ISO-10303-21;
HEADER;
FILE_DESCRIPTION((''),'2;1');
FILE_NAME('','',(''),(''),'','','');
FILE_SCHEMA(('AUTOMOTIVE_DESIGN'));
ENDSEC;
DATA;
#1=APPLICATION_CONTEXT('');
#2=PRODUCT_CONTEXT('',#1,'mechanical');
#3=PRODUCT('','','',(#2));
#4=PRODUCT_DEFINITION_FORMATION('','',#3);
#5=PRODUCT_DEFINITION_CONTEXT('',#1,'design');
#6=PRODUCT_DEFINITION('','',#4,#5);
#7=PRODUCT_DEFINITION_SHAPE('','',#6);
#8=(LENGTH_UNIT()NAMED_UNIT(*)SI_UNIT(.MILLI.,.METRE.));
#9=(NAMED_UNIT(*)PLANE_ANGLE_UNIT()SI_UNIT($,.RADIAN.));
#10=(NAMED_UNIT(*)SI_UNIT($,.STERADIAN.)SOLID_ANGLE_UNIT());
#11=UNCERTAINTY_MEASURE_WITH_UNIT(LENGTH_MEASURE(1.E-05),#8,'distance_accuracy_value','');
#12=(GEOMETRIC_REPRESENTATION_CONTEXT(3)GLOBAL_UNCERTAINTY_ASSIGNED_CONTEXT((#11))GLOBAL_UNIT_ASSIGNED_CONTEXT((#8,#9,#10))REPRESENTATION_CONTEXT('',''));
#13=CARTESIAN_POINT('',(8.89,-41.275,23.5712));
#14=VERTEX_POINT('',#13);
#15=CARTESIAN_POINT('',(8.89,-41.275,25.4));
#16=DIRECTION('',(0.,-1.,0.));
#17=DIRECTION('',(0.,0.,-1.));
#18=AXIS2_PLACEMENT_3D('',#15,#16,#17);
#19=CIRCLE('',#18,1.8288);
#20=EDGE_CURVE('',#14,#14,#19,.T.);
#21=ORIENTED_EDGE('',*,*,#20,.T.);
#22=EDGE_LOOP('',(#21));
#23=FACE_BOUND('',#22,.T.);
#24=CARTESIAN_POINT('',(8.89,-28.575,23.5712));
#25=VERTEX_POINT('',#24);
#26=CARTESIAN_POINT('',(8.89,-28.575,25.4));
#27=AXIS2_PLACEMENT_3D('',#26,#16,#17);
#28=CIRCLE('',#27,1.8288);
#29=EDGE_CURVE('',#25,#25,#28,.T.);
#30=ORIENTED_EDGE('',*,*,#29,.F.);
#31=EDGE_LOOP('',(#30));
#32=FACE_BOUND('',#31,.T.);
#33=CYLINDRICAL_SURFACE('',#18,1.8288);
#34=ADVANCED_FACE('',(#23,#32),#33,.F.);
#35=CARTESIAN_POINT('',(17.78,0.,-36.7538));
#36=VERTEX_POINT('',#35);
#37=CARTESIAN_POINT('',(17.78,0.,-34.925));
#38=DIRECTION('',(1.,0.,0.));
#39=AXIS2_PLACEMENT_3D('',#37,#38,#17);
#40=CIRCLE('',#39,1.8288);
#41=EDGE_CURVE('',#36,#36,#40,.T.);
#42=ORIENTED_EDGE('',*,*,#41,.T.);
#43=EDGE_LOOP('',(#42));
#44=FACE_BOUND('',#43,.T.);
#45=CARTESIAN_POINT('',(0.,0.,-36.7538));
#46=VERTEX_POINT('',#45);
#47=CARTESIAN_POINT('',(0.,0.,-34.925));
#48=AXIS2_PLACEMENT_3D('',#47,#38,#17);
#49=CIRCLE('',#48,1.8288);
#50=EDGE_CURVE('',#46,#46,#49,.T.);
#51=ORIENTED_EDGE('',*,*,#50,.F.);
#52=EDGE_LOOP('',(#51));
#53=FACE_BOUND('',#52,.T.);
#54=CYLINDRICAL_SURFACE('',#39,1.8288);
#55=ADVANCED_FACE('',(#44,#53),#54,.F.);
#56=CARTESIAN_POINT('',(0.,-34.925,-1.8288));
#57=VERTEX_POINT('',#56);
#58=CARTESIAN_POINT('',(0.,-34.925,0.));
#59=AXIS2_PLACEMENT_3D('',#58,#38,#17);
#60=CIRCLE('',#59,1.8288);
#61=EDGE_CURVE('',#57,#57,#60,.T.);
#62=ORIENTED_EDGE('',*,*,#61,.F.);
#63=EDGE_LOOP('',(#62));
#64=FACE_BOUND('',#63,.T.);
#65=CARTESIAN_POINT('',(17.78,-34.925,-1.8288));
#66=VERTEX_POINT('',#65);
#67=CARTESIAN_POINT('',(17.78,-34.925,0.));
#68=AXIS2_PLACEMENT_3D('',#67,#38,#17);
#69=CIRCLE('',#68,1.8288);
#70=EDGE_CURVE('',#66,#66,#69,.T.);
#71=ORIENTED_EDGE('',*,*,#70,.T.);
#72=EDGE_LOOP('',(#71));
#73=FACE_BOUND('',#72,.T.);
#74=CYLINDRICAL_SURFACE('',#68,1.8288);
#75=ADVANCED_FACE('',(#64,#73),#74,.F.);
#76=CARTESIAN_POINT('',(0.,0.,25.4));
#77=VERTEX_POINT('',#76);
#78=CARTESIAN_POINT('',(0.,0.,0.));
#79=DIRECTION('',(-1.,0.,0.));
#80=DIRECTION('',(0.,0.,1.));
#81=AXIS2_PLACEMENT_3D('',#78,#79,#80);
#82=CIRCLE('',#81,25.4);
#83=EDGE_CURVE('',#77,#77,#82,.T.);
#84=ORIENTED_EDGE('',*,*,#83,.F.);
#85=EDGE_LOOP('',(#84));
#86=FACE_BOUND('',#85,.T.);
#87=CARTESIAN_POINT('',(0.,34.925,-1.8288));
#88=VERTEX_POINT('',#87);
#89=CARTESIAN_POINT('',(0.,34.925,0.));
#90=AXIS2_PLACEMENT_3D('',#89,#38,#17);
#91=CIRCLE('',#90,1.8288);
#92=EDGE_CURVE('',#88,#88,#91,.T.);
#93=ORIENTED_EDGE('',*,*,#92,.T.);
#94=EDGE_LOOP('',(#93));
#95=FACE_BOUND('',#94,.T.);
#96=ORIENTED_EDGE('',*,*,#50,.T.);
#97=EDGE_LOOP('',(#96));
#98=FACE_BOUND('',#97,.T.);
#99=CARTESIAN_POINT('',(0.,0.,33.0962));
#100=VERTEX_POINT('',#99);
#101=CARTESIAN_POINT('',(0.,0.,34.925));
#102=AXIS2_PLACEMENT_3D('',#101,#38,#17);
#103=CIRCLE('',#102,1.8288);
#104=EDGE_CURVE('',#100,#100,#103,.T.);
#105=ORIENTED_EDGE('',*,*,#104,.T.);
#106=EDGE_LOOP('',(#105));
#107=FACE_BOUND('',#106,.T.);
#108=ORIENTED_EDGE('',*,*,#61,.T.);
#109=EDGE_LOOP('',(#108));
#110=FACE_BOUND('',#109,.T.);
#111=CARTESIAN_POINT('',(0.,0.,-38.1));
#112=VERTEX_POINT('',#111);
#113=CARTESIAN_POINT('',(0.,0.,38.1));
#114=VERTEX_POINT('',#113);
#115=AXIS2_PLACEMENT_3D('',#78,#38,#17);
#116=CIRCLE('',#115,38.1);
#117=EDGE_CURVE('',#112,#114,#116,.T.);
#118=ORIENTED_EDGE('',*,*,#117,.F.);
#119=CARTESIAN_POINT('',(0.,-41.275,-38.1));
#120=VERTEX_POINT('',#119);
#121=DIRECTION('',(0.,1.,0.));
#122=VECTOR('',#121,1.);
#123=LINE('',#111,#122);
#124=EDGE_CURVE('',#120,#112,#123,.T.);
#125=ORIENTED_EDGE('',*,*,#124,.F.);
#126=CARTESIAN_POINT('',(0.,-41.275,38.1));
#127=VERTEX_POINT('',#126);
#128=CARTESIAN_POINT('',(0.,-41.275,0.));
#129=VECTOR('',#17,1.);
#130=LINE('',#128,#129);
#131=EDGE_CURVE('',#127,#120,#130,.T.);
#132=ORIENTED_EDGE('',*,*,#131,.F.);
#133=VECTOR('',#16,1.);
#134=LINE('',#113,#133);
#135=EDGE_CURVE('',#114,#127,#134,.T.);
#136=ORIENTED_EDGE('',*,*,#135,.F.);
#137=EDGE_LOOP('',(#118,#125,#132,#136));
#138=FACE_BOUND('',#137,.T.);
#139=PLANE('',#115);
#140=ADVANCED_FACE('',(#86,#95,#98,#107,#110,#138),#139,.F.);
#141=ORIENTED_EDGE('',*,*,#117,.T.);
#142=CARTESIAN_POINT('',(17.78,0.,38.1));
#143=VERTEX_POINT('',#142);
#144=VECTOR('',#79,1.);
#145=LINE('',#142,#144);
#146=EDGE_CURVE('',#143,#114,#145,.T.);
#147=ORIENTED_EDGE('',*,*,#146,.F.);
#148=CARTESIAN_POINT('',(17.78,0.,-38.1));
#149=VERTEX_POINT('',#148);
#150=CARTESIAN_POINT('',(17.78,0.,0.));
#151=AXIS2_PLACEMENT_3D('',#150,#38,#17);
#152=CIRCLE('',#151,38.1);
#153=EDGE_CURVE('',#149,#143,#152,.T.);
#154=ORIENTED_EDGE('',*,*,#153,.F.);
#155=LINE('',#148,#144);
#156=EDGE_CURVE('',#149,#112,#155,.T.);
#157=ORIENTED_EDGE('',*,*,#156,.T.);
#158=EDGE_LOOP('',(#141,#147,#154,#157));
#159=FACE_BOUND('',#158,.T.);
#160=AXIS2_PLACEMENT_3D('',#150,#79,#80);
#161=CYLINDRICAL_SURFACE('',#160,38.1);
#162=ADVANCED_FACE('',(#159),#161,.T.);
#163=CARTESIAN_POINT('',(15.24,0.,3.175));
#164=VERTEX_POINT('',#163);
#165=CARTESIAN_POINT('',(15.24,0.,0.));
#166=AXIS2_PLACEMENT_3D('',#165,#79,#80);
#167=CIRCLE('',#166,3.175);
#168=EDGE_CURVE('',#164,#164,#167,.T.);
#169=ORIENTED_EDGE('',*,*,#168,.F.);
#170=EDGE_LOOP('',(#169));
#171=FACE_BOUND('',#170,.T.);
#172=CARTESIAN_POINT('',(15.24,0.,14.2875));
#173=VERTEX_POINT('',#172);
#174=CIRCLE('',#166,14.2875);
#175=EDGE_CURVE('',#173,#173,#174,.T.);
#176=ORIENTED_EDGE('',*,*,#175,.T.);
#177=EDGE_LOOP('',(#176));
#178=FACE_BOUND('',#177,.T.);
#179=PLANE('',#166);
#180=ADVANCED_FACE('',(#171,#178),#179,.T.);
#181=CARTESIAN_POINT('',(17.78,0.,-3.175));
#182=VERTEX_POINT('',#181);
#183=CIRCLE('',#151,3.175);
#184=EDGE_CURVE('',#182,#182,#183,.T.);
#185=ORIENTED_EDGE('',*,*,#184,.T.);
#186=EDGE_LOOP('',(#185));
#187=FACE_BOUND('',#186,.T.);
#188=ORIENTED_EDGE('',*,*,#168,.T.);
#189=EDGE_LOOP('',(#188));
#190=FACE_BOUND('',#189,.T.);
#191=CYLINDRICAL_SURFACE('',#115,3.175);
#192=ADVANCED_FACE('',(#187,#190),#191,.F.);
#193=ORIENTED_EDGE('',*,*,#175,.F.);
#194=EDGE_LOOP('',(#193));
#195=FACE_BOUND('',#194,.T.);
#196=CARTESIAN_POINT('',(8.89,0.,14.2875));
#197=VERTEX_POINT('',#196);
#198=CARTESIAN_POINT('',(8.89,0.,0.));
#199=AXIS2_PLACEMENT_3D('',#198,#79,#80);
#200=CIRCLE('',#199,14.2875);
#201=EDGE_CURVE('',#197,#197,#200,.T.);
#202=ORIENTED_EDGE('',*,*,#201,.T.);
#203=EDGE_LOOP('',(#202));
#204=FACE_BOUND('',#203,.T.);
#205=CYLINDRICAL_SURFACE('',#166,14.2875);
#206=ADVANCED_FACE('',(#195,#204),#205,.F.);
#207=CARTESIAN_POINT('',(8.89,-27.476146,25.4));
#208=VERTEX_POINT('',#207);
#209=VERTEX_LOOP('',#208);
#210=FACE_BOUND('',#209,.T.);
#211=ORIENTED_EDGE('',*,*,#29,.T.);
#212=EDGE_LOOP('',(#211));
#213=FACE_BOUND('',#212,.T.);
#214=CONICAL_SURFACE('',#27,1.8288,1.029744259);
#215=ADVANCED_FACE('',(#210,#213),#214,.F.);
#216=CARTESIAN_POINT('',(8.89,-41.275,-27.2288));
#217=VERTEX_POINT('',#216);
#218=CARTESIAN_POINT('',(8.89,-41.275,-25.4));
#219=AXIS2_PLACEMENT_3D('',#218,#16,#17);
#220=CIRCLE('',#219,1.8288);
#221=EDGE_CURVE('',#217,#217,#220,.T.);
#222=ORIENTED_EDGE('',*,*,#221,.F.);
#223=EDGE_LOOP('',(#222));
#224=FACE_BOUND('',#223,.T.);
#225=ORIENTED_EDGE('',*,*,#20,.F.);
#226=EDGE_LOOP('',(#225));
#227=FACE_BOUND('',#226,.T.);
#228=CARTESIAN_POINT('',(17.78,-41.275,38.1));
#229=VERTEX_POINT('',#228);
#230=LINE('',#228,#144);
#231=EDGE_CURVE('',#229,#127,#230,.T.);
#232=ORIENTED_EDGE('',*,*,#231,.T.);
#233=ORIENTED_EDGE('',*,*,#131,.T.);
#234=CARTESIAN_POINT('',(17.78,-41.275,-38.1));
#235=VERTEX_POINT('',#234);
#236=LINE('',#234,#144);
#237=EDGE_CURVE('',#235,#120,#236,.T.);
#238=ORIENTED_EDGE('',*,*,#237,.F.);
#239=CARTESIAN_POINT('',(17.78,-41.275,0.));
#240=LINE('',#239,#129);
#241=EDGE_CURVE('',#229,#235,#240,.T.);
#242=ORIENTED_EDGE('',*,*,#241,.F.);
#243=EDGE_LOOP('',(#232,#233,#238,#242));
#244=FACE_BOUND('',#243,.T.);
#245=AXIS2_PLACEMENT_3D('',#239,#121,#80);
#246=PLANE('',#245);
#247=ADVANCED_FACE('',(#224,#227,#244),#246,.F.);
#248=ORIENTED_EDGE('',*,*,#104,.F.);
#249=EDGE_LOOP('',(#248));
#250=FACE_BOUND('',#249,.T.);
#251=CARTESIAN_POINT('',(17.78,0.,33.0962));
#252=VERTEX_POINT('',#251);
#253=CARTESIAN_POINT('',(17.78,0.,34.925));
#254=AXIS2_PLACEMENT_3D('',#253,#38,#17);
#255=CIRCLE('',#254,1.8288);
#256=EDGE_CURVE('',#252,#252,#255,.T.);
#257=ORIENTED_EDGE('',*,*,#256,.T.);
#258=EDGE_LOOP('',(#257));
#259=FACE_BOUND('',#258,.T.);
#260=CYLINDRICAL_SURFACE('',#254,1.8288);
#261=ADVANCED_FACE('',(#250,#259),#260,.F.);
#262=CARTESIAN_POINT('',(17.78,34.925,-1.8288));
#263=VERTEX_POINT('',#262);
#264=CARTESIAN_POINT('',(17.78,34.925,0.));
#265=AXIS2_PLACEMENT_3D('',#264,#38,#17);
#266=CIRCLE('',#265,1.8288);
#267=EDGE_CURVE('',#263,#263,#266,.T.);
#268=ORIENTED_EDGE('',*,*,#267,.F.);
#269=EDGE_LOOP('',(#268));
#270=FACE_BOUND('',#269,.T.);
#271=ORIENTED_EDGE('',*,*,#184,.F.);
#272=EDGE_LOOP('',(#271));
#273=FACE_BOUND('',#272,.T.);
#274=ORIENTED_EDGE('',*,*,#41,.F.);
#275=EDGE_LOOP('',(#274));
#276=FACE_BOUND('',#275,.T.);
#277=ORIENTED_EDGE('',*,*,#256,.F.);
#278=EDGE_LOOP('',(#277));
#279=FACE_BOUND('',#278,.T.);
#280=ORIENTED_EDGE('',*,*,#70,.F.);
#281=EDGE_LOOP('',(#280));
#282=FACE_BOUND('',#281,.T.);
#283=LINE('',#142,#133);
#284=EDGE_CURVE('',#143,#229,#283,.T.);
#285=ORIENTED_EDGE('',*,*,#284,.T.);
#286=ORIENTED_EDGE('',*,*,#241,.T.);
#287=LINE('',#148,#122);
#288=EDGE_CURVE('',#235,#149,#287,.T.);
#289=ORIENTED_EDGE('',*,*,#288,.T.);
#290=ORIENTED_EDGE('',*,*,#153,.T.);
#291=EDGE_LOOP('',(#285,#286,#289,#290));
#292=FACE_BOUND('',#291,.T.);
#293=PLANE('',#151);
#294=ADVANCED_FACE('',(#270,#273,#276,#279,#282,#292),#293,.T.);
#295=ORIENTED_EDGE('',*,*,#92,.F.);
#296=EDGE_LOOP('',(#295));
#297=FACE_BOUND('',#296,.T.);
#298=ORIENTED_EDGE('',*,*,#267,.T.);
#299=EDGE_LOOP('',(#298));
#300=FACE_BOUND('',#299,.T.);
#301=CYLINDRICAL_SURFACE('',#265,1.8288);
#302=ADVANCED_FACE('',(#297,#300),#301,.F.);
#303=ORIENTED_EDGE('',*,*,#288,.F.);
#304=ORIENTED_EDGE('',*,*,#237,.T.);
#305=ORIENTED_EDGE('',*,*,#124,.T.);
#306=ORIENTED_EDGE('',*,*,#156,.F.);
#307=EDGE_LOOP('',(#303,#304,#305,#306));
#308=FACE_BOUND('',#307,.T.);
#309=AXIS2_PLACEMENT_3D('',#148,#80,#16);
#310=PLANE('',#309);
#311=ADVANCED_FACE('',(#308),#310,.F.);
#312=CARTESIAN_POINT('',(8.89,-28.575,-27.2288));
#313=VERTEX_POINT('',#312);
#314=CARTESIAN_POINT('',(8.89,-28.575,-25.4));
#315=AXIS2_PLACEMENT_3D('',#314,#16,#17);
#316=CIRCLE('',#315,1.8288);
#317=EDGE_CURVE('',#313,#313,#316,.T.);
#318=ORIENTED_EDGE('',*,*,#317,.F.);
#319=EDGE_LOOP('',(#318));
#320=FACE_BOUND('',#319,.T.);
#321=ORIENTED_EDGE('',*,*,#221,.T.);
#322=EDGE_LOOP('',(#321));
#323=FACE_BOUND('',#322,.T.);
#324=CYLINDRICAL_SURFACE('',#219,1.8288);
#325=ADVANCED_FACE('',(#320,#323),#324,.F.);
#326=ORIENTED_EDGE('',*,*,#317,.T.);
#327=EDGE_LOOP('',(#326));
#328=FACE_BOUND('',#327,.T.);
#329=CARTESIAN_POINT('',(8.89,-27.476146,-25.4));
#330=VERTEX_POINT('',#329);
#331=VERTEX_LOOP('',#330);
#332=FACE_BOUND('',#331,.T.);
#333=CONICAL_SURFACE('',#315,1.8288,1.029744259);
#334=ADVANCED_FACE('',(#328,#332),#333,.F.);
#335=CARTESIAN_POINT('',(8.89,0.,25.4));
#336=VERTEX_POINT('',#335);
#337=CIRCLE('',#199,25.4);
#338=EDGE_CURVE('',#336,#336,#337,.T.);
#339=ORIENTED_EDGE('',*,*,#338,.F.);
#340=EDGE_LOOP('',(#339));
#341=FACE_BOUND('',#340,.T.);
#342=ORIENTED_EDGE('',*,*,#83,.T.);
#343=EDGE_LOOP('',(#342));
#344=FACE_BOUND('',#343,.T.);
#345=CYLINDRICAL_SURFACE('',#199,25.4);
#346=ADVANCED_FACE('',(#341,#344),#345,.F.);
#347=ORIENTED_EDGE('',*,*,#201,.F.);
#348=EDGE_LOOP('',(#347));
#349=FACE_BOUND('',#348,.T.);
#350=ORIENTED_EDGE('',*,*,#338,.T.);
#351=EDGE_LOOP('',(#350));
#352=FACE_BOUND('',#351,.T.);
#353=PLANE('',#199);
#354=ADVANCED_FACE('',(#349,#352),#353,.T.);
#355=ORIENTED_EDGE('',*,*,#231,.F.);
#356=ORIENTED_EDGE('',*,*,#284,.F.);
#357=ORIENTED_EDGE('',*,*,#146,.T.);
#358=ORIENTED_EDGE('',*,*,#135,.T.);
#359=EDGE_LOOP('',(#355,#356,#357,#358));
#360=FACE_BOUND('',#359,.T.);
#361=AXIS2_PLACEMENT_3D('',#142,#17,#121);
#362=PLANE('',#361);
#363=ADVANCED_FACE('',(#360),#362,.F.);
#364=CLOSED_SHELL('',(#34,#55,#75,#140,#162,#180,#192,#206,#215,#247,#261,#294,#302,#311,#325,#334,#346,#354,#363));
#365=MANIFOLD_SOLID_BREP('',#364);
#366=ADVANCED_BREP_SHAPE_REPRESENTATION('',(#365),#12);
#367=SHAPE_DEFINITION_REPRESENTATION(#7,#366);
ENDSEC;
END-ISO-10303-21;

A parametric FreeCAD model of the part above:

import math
import FreeCAD as App
import Part
import Sketcher
Q = App.Units.Quantity

doc = App.newDocument("Part")
body = doc.addObject("PartDesign::Body", "Body")

# Sketch on YZ plane
sketch1 = doc.addObject("Sketcher::SketchObject", "Sketch")
body.addObject(sketch1)
sketch1.AttachmentSupport = (doc.YZ_Plane, [""])
sketch1.MapMode = "FlatFace"
sketch1.addGeometry(Part.LineSegment(App.Vector(0, 38, 0), App.Vector(-41, 38, 0)), False)
sketch1.addGeometry(Part.LineSegment(App.Vector(-41, 38, 0), App.Vector(-41, -38, 0)), False)
sketch1.addGeometry(Part.LineSegment(App.Vector(-41, -38, 0), App.Vector(0, -38, 0)), False)
sketch1.addGeometry(Part.ArcOfCircle(Part.Circle(App.Vector(0, 0, 0), App.Vector(0, 0, 1), 38), math.radians(-90), math.radians(90)), False)
sketch1.addConstraint(Sketcher.Constraint("Coincident", 0, 2, 1, 1))
sketch1.addConstraint(Sketcher.Constraint("Coincident", 1, 2, 2, 1))
sketch1.addConstraint(Sketcher.Constraint("Tangent", 2, 2, 3, 1))
sketch1.addConstraint(Sketcher.Constraint("Tangent", 3, 2, 0, 1))
sketch1.addConstraint(Sketcher.Constraint("Horizontal", 0))
sketch1.addConstraint(Sketcher.Constraint("Vertical", 1))
sketch1.addConstraint(Sketcher.Constraint("Horizontal", 2))
sketch1.addConstraint(Sketcher.Constraint("Coincident", 3, 3, -1, 1))
sketch1.addConstraint(Sketcher.Constraint("Radius", 3, Q("1.5 in")))
sketch1.addConstraint(Sketcher.Constraint("DistanceX", 0, 2, 0, 1, Q("1.625 in")))
pad1 = doc.addObject("PartDesign::Pad", "Pad")
body.addObject(pad1)
pad1.Profile = sketch1
pad1.Length = Q("0.7 in")

# Sketch on YZ plane
sketch2 = doc.addObject("Sketcher::SketchObject", "Sketch001")
body.addObject(sketch2)
sketch2.AttachmentSupport = (doc.YZ_Plane, [""])
sketch2.MapMode = "FlatFace"
sketch2.addGeometry(Part.Circle(App.Vector(0, 0, 0), App.Vector(0, 0, 1), 25), False)
sketch2.addConstraint(Sketcher.Constraint("Coincident", 0, 3, -1, 1))
sketch2.addConstraint(Sketcher.Constraint("Diameter", 0, Q("2 in")))
pocket1 = doc.addObject("PartDesign::Pocket", "Pocket")
body.addObject(pocket1)
pocket1.Profile = sketch2
pocket1.Length = Q("0.35 in")
pocket1.Reversed = True

# Sketch on YZ plane
sketch3 = doc.addObject("Sketcher::SketchObject", "Sketch002")
body.addObject(sketch3)
sketch3.AttachmentSupport = (doc.YZ_Plane, [""])
sketch3.MapMode = "FlatFace"
sketch3.AttachmentOffset = App.Placement(App.Vector(0, 0, 0.7 * 25.4), App.Rotation())
sketch3.addGeometry(Part.Circle(App.Vector(34.9, 0, 0), App.Vector(0, 0, 1), 1.8), False)
sketch3.addGeometry(Part.Circle(App.Vector(0, -34.9, 0), App.Vector(0, 0, 1), 1.8), False)
sketch3.addGeometry(Part.Circle(App.Vector(-34.9, 0, 0), App.Vector(0, 0, 1), 1.8), False)
sketch3.addGeometry(Part.Circle(App.Vector(0, 34.9, 0), App.Vector(0, 0, 1), 1.8), False)
sketch3.addConstraint(Sketcher.Constraint("Equal", 0, 1))
sketch3.addConstraint(Sketcher.Constraint("Equal", 1, 2))
sketch3.addConstraint(Sketcher.Constraint("Equal", 2, 3))
sketch3.addConstraint(Sketcher.Constraint("Symmetric", 0, 3, 2, 3, -1, 1))
sketch3.addConstraint(Sketcher.Constraint("Symmetric", 1, 3, 3, 3, -1, 1))
sketch3.addConstraint(Sketcher.Constraint("PointOnObject", 0, 3, -1))
sketch3.addConstraint(Sketcher.Constraint("PointOnObject", 1, 3, -2))
sketch3.addConstraint(Sketcher.Constraint("Diameter", 0, Q("0.144 in")))
sketch3.addConstraint(Sketcher.Constraint("DistanceX", 2, 3, 0, 3, Q("2.75 in")))
sketch3.addConstraint(Sketcher.Constraint("DistanceY", 1, 3, 3, 3, Q("2.75 in")))
doc.recompute()
hole = doc.addObject("PartDesign::Hole", "Hole")
body.addObject(hole)
hole.Profile = sketch3
hole.ThreadType = "None"
hole.Diameter = Q("0.144 in")
hole.DepthType = "ThroughAll"

# Sketch on YZ plane
sketch4 = doc.addObject("Sketcher::SketchObject", "Sketch003")
body.addObject(sketch4)
sketch4.AttachmentSupport = (doc.YZ_Plane, [""])
sketch4.MapMode = "FlatFace"
sketch4.AttachmentOffset = App.Placement(App.Vector(0, 0, 0.35 * 25.4), App.Rotation())
sketch4.addGeometry(Part.Circle(App.Vector(0, 0, 0), App.Vector(0, 0, 1), 14), False)
sketch4.addConstraint(Sketcher.Constraint("Coincident", 0, 3, -1, 1))
sketch4.addConstraint(Sketcher.Constraint("Diameter", 0, Q("1.125 in")))
pocket2 = doc.addObject("PartDesign::Pocket", "Pocket001")
body.addObject(pocket2)
pocket2.Profile = sketch4
pocket2.Length = Q("0.25 in")
pocket2.Reversed = True

# Sketch on YZ plane
sketch5 = doc.addObject("Sketcher::SketchObject", "Sketch004")
body.addObject(sketch5)
sketch5.AttachmentSupport = (doc.YZ_Plane, [""])
sketch5.MapMode = "FlatFace"
sketch5.AttachmentOffset = App.Placement(App.Vector(0, 0, 0.7 * 25.4), App.Rotation())
sketch5.addGeometry(Part.Circle(App.Vector(0, 0, 0), App.Vector(0, 0, 1), 3.2), False)
sketch5.addConstraint(Sketcher.Constraint("Coincident", 0, 3, -1, 1))
sketch5.addConstraint(Sketcher.Constraint("Diameter", 0, Q("0.25 in")))
pocket3 = doc.addObject("PartDesign::Pocket", "Pocket002")
body.addObject(pocket3)
pocket3.Profile = sketch5
pocket3.Type = "ThroughAll"

# Sketch on XZ plane
sketch6 = doc.addObject("Sketcher::SketchObject", "Sketch005")
body.addObject(sketch6)
sketch6.AttachmentSupport = (doc.XZ_Plane, [""])
sketch6.MapMode = "FlatFace"
sketch6.AttachmentOffset = App.Placement(App.Vector(0, 0, 1.625 * 25.4), App.Rotation())
sketch6.addGeometry(Part.Circle(App.Vector(8.9, -25.4, 0), App.Vector(0, 0, 1), 1.8), False)
sketch6.addGeometry(Part.Circle(App.Vector(8.9, 25.4, 0), App.Vector(0, 0, 1), 1.8), False)
sketch6.addConstraint(Sketcher.Constraint("Equal", 0, 1))
sketch6.addConstraint(Sketcher.Constraint("Symmetric", 0, 3, 1, 3, -1))
sketch6.addConstraint(Sketcher.Constraint("Diameter", 0, Q("0.144 in")))
sketch6.addConstraint(Sketcher.Constraint("DistanceY", 0, 3, -1, 1, Q("1 in")))
sketch6.addConstraint(Sketcher.Constraint("DistanceX", -1, 1, 0, 3, Q("0.35 in")))
doc.recompute()
hole2 = doc.addObject("PartDesign::Hole", "Hole001")
body.addObject(hole2)
hole2.Profile = sketch6
hole2.ThreadType = "None"
hole2.Diameter = Q("0.144 in")
hole2.DepthType = "Dimension"
hole2.Depth = Q("0.5 in")
hole2.DrillPoint = "Angled"
hole2.DrillPointAngle = 118

doc.recompute()
